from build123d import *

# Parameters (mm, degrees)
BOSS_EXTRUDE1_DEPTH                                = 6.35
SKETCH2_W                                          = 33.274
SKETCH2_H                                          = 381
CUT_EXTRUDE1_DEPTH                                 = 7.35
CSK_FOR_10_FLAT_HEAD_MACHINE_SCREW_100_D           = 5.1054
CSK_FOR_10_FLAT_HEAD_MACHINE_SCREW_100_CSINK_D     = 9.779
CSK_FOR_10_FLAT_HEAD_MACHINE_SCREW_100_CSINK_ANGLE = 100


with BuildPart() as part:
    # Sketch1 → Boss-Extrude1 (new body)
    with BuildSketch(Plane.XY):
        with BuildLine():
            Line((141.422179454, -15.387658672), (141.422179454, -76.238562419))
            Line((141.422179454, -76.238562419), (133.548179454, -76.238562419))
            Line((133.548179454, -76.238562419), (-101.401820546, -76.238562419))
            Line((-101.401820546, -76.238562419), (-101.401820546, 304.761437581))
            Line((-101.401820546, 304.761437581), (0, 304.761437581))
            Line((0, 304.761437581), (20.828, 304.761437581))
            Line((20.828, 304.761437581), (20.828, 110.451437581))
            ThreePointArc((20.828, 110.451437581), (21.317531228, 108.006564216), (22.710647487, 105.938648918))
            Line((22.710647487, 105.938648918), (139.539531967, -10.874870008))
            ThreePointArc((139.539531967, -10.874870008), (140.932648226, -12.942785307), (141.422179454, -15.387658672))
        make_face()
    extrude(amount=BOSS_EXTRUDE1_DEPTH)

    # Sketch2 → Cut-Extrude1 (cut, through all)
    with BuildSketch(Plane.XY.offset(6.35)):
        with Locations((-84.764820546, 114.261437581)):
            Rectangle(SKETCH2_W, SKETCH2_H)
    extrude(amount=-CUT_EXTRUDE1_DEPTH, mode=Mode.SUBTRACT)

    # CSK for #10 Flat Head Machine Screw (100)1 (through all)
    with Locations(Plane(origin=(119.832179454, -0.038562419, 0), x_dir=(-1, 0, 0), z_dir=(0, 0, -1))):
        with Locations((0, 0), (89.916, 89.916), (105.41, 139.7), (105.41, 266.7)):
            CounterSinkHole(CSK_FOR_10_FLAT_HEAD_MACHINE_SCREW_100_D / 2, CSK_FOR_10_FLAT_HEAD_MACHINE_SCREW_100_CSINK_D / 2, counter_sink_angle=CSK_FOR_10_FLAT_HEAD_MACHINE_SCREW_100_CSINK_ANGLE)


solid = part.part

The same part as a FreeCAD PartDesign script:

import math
import FreeCAD as App
import Part
import Sketcher
from FreeCAD import Vector
Q = App.Units.Quantity

doc = App.newDocument("Part")
params = doc.addObject("Spreadsheet::Sheet", "Params")
for row, (alias, value) in enumerate([
    ("sketch1_height", "15 in"),
    ("sketch1_radius", "0.25 in"),
    ("sketch1_width", "9.56 in"),
    ("sketch1_height2", "7.65 in"),
    ("pad1_length", "0.25 in"),
    ("sketch2_height", "15 in"),
    ("sketch2_width", "1.31 in"),
    ("sketch3_diameter", "0.201 in"),
    ("hole_diameter", "0.201 in"),
    ("hole_csink_diameter", "0.385 in"),
], start=1):
    params.set(f"A{row}", alias)
    params.set(f"B{row}", "=" + value)
    params.setAlias(f"B{row}", alias)

body = doc.addObject("PartDesign::Body", "Body")

sketch1 = doc.addObject("Sketcher::SketchObject", "Sketch")
body.addObject(sketch1)
sketch1.AttachmentSupport = (doc.XY_Plane, [""])
sketch1.MapMode = "FlatFace"
sketch1.addGeometry([
    Part.LineSegment(Vector(141.4, -76.2, 0), Vector(141.4, -15.4, 0)),
    Part.ArcOfCircle(Part.Circle(Vector(135.1, -15.4, 0), Vector(0, 0, 1), 6.4), math.radians(0), math.radians(45)),
    Part.LineSegment(Vector(139.5, -10.9, 0), Vector(22.7, 105.9, 0)),
    Part.ArcOfCircle(Part.Circle(Vector(27.2, 110.5, 0), Vector(0, 0, 1), 6.3), math.radians(180), math.radians(225)),
    Part.LineSegment(Vector(20.8, 110.5, 0), Vector(20.8, 304.8, 0)),
    Part.LineSegment(Vector(20.8, 304.8, 0), Vector(-101.4, 304.8, 0)),
    Part.LineSegment(Vector(-101.4, 304.8, 0), Vector(-101.4, -76.2, 0)),
    Part.LineSegment(Vector(-101.4, -76.2, 0), Vector(141.4, -76.2, 0)),
], False)
sketch1.addConstraint([
    Sketcher.Constraint("Tangent", 0, 2, 1, 1),
    Sketcher.Constraint("Coincident", 1, 2, 2, 1),
    Sketcher.Constraint("Coincident", 2, 2, 3, 2),
    Sketcher.Constraint("Tangent", 3, 1, 4, 1),
    Sketcher.Constraint("Coincident", 4, 2, 5, 1),
    Sketcher.Constraint("Coincident", 5, 2, 6, 1),
    Sketcher.Constraint("Coincident", 6, 2, 7, 1),
    Sketcher.Constraint("Coincident", 7, 2, 0, 1),
    Sketcher.Constraint("Vertical", 0),
    Sketcher.Constraint("Vertical", 4),
    Sketcher.Constraint("Horizontal", 5),
    Sketcher.Constraint("Vertical", 6),
    Sketcher.Constraint("Horizontal", 7),
    Sketcher.Constraint("Equal", 1, 3),
    Sketcher.Constraint("DistanceY", 6, 2, 6, 1, Q("15 in")),
    Sketcher.Constraint("Radius", 1, Q("0.25 in")),
    Sketcher.Constraint("DistanceX", 7, 1, 7, 2, Q("9.56 in")),
    Sketcher.Constraint("DistanceY", 4, 1, 4, 2, Q("7.65 in")),
    Sketcher.Constraint("DistanceX", -1, 1, 3, 3, Q("1.07 in")),
    Sketcher.Constraint("DistanceX", 5, 2, 5, 1, Q("122.229821 mm")),
    Sketcher.Constraint("Distance", 2, Q("165.210128 mm")),
    Sketcher.Constraint("DistanceY", 0, 1, 0, 2, Q("60.850904 mm")),
    Sketcher.Constraint("DistanceY", 1, 3, -1, 1, Q("15.387659 mm")),
    Sketcher.Constraint("DistanceX", -1, 1, 1, 2, Q("139.539532 mm")),
])
sketch1.setExpression("Constraints[14]", "Params.sketch1_height")
sketch1.setExpression("Constraints[15]", "Params.sketch1_radius")
sketch1.setExpression("Constraints[16]", "Params.sketch1_width")
sketch1.setExpression("Constraints[17]", "Params.sketch1_height2")
pad1 = doc.addObject("PartDesign::Pad", "Pad")
body.addObject(pad1)
pad1.Profile = sketch1
pad1.setExpression("Length", "Params.pad1_length")

sketch2 = doc.addObject("Sketcher::SketchObject", "Sketch001")
body.addObject(sketch2)
sketch2.AttachmentSupport = (doc.XY_Plane, [""])
sketch2.MapMode = "FlatFace"
sketch2.AttachmentOffset = App.Placement(Vector(0, 0, 0.25 * 25.4), App.Rotation())
sketch2.addGeometry([
    Part.LineSegment(Vector(-101, 305, 0), Vector(-101, -76, 0)),
    Part.LineSegment(Vector(-101, -76, 0), Vector(-68, -76, 0)),
    Part.LineSegment(Vector(-68, -76, 0), Vector(-68, 305, 0)),
    Part.LineSegment(Vector(-68, 305, 0), Vector(-101, 305, 0)),
], False)
sketch2.addConstraint([
    Sketcher.Constraint("Coincident", 0, 2, 1, 1),
    Sketcher.Constraint("Coincident", 1, 2, 2, 1),
    Sketcher.Constraint("Coincident", 2, 2, 3, 1),
    Sketcher.Constraint("Coincident", 3, 2, 0, 1),
    Sketcher.Constraint("Vertical", 0),
    Sketcher.Constraint("Horizontal", 1),
    Sketcher.Constraint("Vertical", 2),
    Sketcher.Constraint("Horizontal", 3),
    Sketcher.Constraint("DistanceY", 0, 2, 0, 1, Q("15 in")),
    Sketcher.Constraint("DistanceX", 1, 1, 1, 2, Q("1.31 in")),
    Sketcher.Constraint("DistanceX", 0, 2, -1, 1, Q("101.401821 mm")),
    Sketcher.Constraint("DistanceY", 0, 2, -1, 1, Q("76.238562 mm")),
])
sketch2.setExpression("Constraints[8]", "Params.sketch2_height")
sketch2.setExpression("Constraints[9]", "Params.sketch2_width")
pocket1 = doc.addObject("PartDesign::Pocket", "Pocket")
body.addObject(pocket1)
pocket1.Profile = sketch2
pocket1.Type = "ThroughAll"

sketch3 = doc.addObject("Sketcher::SketchObject", "Sketch002")
body.addObject(sketch3)
sketch3.AttachmentSupport = (doc.XY_Plane, [""])
sketch3.MapMode = "FlatFace"
sketch3.addGeometry([
    Part.Circle(Vector(119.8, 0, 0), Vector(0, 0, 1), 2.6),
    Part.Circle(Vector(29.9, 89.9, 0), Vector(0, 0, 1), 2.6),
    Part.Circle(Vector(14.4, 139.7, 0), Vector(0, 0, 1), 2.6),
    Part.Circle(Vector(14.4, 266.7, 0), Vector(0, 0, 1), 2.6),
], False)
sketch3.addConstraint([
    Sketcher.Constraint("Equal", 0, 1),
    Sketcher.Constraint("Equal", 1, 2),
    Sketcher.Constraint("Equal", 2, 3),
    Sketcher.Constraint("Vertical", 2, 3, 3, 3),
    Sketcher.Constraint("Diameter", 0, Q("0.201 in")),
    Sketcher.Constraint("DistanceY", 2, 3, 3, 3, Q("5 in")),
    Sketcher.Constraint("DistanceY", 0, 3, 2, 3, Q("5.5 in")),
    Sketcher.Constraint("DistanceX", 1, 3, 0, 3, Q("3.54 in")),
    Sketcher.Constraint("DistanceY", 0, 3, 1, 3, Q("3.54 in")),
    Sketcher.Constraint("DistanceX", 2, 3, 1, 3, Q("0.61 in")),
    Sketcher.Constraint("DistanceX", -1, 1, 0, 3, Q("119.832179 mm")),
    Sketcher.Constraint("DistanceY", 0, 3, -1, 1, Q("0.038562 mm")),
])
sketch3.setExpression("Constraints[4]", "Params.sketch3_diameter")
doc.recompute()
hole = doc.addObject("PartDesign::Hole", "Hole")
body.addObject(hole)
hole.Profile = sketch3
hole.ThreadType = "None"
hole.setExpression("Diameter", "Params.hole_diameter")
hole.DepthType = "ThroughAll"
hole.HoleCutType = "Countersink"
hole.setExpression("HoleCutDiameter", "Params.hole_csink_diameter")
hole.HoleCutCountersinkAngle = 100
hole.Reversed = True

doc.recompute()
